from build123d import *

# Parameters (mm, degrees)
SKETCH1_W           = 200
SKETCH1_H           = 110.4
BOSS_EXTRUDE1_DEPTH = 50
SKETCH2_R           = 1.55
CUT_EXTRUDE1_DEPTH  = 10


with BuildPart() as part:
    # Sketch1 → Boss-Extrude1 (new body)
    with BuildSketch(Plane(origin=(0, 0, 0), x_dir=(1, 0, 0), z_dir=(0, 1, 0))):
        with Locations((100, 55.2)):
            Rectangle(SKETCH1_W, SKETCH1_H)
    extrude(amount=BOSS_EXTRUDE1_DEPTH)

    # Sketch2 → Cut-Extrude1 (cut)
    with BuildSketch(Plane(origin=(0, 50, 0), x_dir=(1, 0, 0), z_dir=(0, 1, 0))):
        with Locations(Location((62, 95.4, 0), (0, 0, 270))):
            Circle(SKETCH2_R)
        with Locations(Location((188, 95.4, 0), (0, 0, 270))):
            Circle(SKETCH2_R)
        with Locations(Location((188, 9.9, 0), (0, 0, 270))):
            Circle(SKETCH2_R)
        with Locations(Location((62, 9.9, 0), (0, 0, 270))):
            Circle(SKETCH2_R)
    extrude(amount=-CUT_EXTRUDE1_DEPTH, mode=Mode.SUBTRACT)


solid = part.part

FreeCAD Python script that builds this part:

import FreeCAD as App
import Part
import Sketcher
from FreeCAD import Vector
Q = App.Units.Quantity


def add_polygon(sketch, points):
    """Adds a closed chain of lines whose ends are joined by coincident constraints."""
    first, n = sketch.GeometryCount, len(points)
    for a, b in zip(points, points[1:] + points[:1]):
        sketch.addGeometry(Part.LineSegment(App.Vector(*a, 0), App.Vector(*b, 0)), False)
    for i in range(n):
        sketch.addConstraint(Sketcher.Constraint("Coincident", first + i, 2, first + (i + 1) % n, 1))

doc = App.newDocument("Part")
body = doc.addObject("PartDesign::Body", "Body")

# Sketch on XZ plane
sketch1 = doc.addObject("Sketcher::SketchObject", "Sketch")
body.addObject(sketch1)
sketch1.AttachmentSupport = (doc.XZ_Plane, [""])
sketch1.MapMode = "FlatFace"
add_polygon(sketch1, [(0, -110), (0, 0), (200, 0), (200, -110)])  # lines 0-3
sketch1.addConstraint([
    Sketcher.Constraint("Vertical", 0),
    Sketcher.Constraint("Horizontal", 1),
    Sketcher.Constraint("Vertical", 2),
    Sketcher.Constraint("Horizontal", 3),
    Sketcher.Constraint("Coincident", 0, 2, -1, 1),
    Sketcher.Constraint("DistanceX", 1, 1, 1, 2, Q("200 mm")),
    Sketcher.Constraint("DistanceY", 0, 1, 0, 2, Q("110.4 mm")),
])
pad1 = doc.addObject("PartDesign::Pad", "Pad")
body.addObject(pad1)
pad1.Profile = sketch1
pad1.Length = 50
pad1.Reversed = True

# Sketch on XZ plane
sketch2 = doc.addObject("Sketcher::SketchObject", "Sketch001")
body.addObject(sketch2)
sketch2.AttachmentSupport = (doc.XZ_Plane, [""])
sketch2.MapMode = "FlatFace"
sketch2.AttachmentOffset = App.Placement(Vector(0, 0, -50), App.Rotation())
sketch2.addGeometry([
    Part.Circle(Vector(62, -95.4, 0), Vector(0, 0, 1), 1.6),
    Part.Circle(Vector(188, -95.4, 0), Vector(0, 0, 1), 1.6),
    Part.Circle(Vector(188, -9.9, 0), Vector(0, 0, 1), 1.6),
    Part.Circle(Vector(62, -9.9, 0), Vector(0, 0, 1), 1.6),
], False)
sketch2.addConstraint([
    Sketcher.Constraint("Equal", 0, 1),
    Sketcher.Constraint("Equal", 1, 2),
    Sketcher.Constraint("Equal", 2, 3),
    Sketcher.Constraint("Horizontal", 0, 3, 1, 3),
    Sketcher.Constraint("Horizontal", 2, 3, 3, 3),
    Sketcher.Constraint("Vertical", 1, 3, 2, 3),
    Sketcher.Constraint("Vertical", 0, 3, 3, 3),
    Sketcher.Constraint("Diameter", 0, Q("3.1 mm")),
    Sketcher.Constraint("DistanceX", -1, 1, 0, 3, Q("62 mm")),
    Sketcher.Constraint("DistanceX", -1, 1, 1, 3, Q("188 mm")),
    Sketcher.Constraint("DistanceY", 0, 3, -1, 1, Q("95.4 mm")),
    Sketcher.Constraint("DistanceY", 2, 3, -1, 1, Q("9.9 mm")),
])
pocket1 = doc.addObject("PartDesign::Pocket", "Pocket")
body.addObject(pocket1)
pocket1.Profile = sketch2
pocket1.Length = 10
pocket1.Reversed = True

doc.recompute()
